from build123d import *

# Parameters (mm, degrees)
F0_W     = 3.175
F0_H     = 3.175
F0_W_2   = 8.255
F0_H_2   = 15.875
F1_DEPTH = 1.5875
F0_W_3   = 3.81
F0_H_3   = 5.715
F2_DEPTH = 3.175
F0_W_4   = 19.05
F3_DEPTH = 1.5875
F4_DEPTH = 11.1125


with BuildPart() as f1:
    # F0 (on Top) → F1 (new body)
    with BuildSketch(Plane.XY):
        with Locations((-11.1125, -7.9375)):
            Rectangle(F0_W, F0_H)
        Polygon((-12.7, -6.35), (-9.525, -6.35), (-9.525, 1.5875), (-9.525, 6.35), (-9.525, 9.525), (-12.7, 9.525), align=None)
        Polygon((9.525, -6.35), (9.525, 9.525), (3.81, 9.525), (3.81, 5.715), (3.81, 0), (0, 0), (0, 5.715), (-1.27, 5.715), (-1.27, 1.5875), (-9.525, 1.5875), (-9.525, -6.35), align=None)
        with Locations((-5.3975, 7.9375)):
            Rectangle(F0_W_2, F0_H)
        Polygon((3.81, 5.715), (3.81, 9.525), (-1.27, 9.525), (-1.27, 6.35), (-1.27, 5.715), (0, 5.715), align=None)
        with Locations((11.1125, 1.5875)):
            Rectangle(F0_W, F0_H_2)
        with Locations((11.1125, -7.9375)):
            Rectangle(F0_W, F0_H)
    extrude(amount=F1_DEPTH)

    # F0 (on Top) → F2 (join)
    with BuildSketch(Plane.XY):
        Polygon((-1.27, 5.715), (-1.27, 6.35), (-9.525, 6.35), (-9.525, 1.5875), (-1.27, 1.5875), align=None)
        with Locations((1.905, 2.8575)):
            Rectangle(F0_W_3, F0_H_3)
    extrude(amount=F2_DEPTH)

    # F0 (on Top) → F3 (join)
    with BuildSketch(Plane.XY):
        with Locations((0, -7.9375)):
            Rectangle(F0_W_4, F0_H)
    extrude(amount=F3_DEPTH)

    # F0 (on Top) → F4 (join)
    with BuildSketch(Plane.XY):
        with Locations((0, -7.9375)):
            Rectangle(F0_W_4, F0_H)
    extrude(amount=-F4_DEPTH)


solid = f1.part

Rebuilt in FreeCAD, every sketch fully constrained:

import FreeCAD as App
import Part
import Sketcher
from FreeCAD import Vector
Q = App.Units.Quantity

doc = App.newDocument("Part")
params = doc.addObject("Spreadsheet::Sheet", "Params")
for row, (alias, value) in enumerate([
    ("sketch1_width", "1 in"),
    ("sketch1_width2", "0.75 in"),
    ("sketch1_width3", "0.15 in"),
    ("sketch1_height", "0.225 in"),
    ("sketch1_height2", "0.1875 in"),
    ("pad1_length", "0.0625 in"),
    ("sketch2_width", "0.15 in"),
    ("sketch2_width2", "0.325 in"),
    ("sketch2_height", "0.1875 in"),
    ("sketch2_height2", "0.225 in"),
    ("pad2_length", "0.125 in"),
    ("sketch3_width", "0.75 in"),
    ("sketch3_height", "0.125 in"),
    ("pad3_length", "0.0625 in"),
    ("sketch4_width", "0.75 in"),
    ("sketch4_height", "0.125 in"),
    ("pad4_length", "0.4375 in"),
], start=1):
    params.set(f"A{row}", alias)
    params.set(f"B{row}", "=" + value)
    params.setAlias(f"B{row}", alias)

body = doc.addObject("PartDesign::Body", "Body")

sketch1 = body.newObject("Sketcher::SketchObject", "Sketch")
sketch1.AttachmentSupport = (doc.getObject("XY_Plane"), [""])
sketch1.MapMode = "FlatFace"
sketch1.addGeometry([
    Part.LineSegment(Vector(-12.7, -9.5, 0), Vector(-9.5, -9.5, 0)),
    Part.LineSegment(Vector(-9.5, -9.5, 0), Vector(-9.5, -6.3, 0)),
    Part.LineSegment(Vector(-9.5, -6.3, 0), Vector(9.5, -6.3, 0)),
    Part.LineSegment(Vector(9.5, -6.3, 0), Vector(9.5, -9.5, 0)),
    Part.LineSegment(Vector(9.5, -9.5, 0), Vector(12.7, -9.5, 0)),
    Part.LineSegment(Vector(12.7, -9.5, 0), Vector(12.7, 9.5, 0)),
    Part.LineSegment(Vector(12.7, 9.5, 0), Vector(-12.7, 9.5, 0)),
    Part.LineSegment(Vector(-12.7, 9.5, 0), Vector(-12.7, -9.5, 0)),
    Part.LineSegment(Vector(3.8, 5.7, 0), Vector(3.8, 0, 0)),
    Part.LineSegment(Vector(3.8, 0, 0), Vector(0, 0, 0)),
    Part.LineSegment(Vector(0, 0, 0), Vector(0, 5.7, 0)),
    Part.LineSegment(Vector(0, 5.7, 0), Vector(3.8, 5.7, 0)),
    Part.LineSegment(Vector(-1.3, 1.6, 0), Vector(-9.5, 1.6, 0)),
    Part.LineSegment(Vector(-9.5, 1.6, 0), Vector(-9.5, 6.3, 0)),
    Part.LineSegment(Vector(-9.5, 6.3, 0), Vector(-1.3, 6.3, 0)),
    Part.LineSegment(Vector(-1.3, 6.3, 0), Vector(-1.3, 1.6, 0)),
], False)
sketch1.addConstraint([
    Sketcher.Constraint("Coincident", 0, 2, 1, 1),
    Sketcher.Constraint("Coincident", 1, 2, 2, 1),
    Sketcher.Constraint("Coincident", 2, 2, 3, 1),
    Sketcher.Constraint("Coincident", 3, 2, 4, 1),
    Sketcher.Constraint("Coincident", 4, 2, 5, 1),
    Sketcher.Constraint("Coincident", 5, 2, 6, 1),
    Sketcher.Constraint("Coincident", 6, 2, 7, 1),
    Sketcher.Constraint("Coincident", 7, 2, 0, 1),
    Sketcher.Constraint("Coincident", 8, 2, 9, 1),
    Sketcher.Constraint("Coincident", 9, 2, 10, 1),
    Sketcher.Constraint("Coincident", 10, 2, 11, 1),
    Sketcher.Constraint("Coincident", 11, 2, 8, 1),
    Sketcher.Constraint("Coincident", 12, 2, 13, 1),
    Sketcher.Constraint("Coincident", 13, 2, 14, 1),
    Sketcher.Constraint("Coincident", 14, 2, 15, 1),
    Sketcher.Constraint("Coincident", 15, 2, 12, 1),
    Sketcher.Constraint("Horizontal", 0),
    Sketcher.Constraint("Vertical", 1),
    Sketcher.Constraint("Horizontal", 2),
    Sketcher.Constraint("Vertical", 3),
    Sketcher.Constraint("Horizontal", 4),
    Sketcher.Constraint("Vertical", 5),
    Sketcher.Constraint("Horizontal", 6),
    Sketcher.Constraint("Vertical", 7),
    Sketcher.Constraint("Vertical", 8),
    Sketcher.Constraint("Horizontal", 9),
    Sketcher.Constraint("Vertical", 10),
    Sketcher.Constraint("Horizontal", 11),
    Sketcher.Constraint("Horizontal", 12),
    Sketcher.Constraint("Vertical", 13),
    Sketcher.Constraint("Horizontal", 14),
    Sketcher.Constraint("Vertical", 15),
    Sketcher.Constraint("Coincident", 9, 2, -1, 1),
    Sketcher.Constraint("Symmetric", 4, 2, 6, 2, -1, 1),
    Sketcher.Constraint("Symmetric", 2, 2, 13, 2, -1, 1),
    Sketcher.Constraint("Symmetric", 0, 2, 3, 2, -2),
    Sketcher.Constraint("Equal", 4, 1),
    Sketcher.Constraint("Equal", 2, 5),
    Sketcher.Constraint("DistanceX", 6, 2, 6, 1, Q("1 in")),
    Sketcher.Constraint("DistanceX", 2, 1, 2, 2, Q("0.75 in")),
    Sketcher.Constraint("DistanceX", 9, 2, 9, 1, Q("0.15 in")),
    Sketcher.Constraint("DistanceX", 14, 2, 11, 2, Q("0.2 in")),
    Sketcher.Constraint("DistanceY", 8, 2, 8, 1, Q("0.225 in")),
    Sketcher.Constraint("DistanceY", 13, 1, 13, 2, Q("0.1875 in")),
])
sketch1.setExpression("Constraints[38]", "Params.sketch1_width")
sketch1.setExpression("Constraints[39]", "Params.sketch1_width2")
sketch1.setExpression("Constraints[40]", "Params.sketch1_width3")
sketch1.setExpression("Constraints[42]", "Params.sketch1_height")
sketch1.setExpression("Constraints[43]", "Params.sketch1_height2")
pad1 = body.newObject("PartDesign::Pad", "Pad")
pad1.Profile = sketch1
pad1.setExpression("Length", "Params.pad1_length")

sketch2 = body.newObject("Sketcher::SketchObject", "Sketch001")
sketch2.AttachmentSupport = (doc.getObject("XY_Plane"), [""])
sketch2.MapMode = "FlatFace"
sketch2.addGeometry([
    Part.LineSegment(Vector(-1.3, 6.3, 0), Vector(-9.5, 6.3, 0)),
    Part.LineSegment(Vector(-9.5, 6.3, 0), Vector(-9.5, 1.6, 0)),
    Part.LineSegment(Vector(-9.5, 1.6, 0), Vector(-1.3, 1.6, 0)),
    Part.LineSegment(Vector(-1.3, 1.6, 0), Vector(-1.3, 6.3, 0)),
    Part.LineSegment(Vector(0, 5.7, 0), Vector(0, 0, 0)),
    Part.LineSegment(Vector(0, 0, 0), Vector(3.8, 0, 0)),
    Part.LineSegment(Vector(3.8, 0, 0), Vector(3.8, 5.7, 0)),
    Part.LineSegment(Vector(3.8, 5.7, 0), Vector(0, 5.7, 0)),
], False)
sketch2.addConstraint([
    Sketcher.Constraint("Coincident", 0, 2, 1, 1),
    Sketcher.Constraint("Coincident", 1, 2, 2, 1),
    Sketcher.Constraint("Coincident", 2, 2, 3, 1),
    Sketcher.Constraint("Coincident", 3, 2, 0, 1),
    Sketcher.Constraint("Coincident", 4, 2, 5, 1),
    Sketcher.Constraint("Coincident", 5, 2, 6, 1),
    Sketcher.Constraint("Coincident", 6, 2, 7, 1),
    Sketcher.Constraint("Coincident", 7, 2, 4, 1),
    Sketcher.Constraint("Horizontal", 0),
    Sketcher.Constraint("Vertical", 1),
    Sketcher.Constraint("Horizontal", 2),
    Sketcher.Constraint("Vertical", 3),
    Sketcher.Constraint("Vertical", 4),
    Sketcher.Constraint("Horizontal", 5),
    Sketcher.Constraint("Vertical", 6),
    Sketcher.Constraint("Horizontal", 7),
    Sketcher.Constraint("Coincident", 4, 2, -1, 1),
    Sketcher.Constraint("DistanceX", 5, 1, 5, 2, Q("0.15 in")),
    Sketcher.Constraint("DistanceX", 2, 2, 5, 2, Q("0.2 in")),
    Sketcher.Constraint("DistanceX", 0, 2, 0, 1, Q("0.325 in")),
    Sketcher.Constraint("DistanceY", 1, 2, 1, 1, Q("0.1875 in")),
    Sketcher.Constraint("DistanceY", 4, 2, 4, 1, Q("0.225 in")),
    Sketcher.Constraint("DistanceY", -1, 1, 0, 2, Q("0.25 in")),
])
sketch2.setExpression("Constraints[17]", "Params.sketch2_width")
sketch2.setExpression("Constraints[19]", "Params.sketch2_width2")
sketch2.setExpression("Constraints[20]", "Params.sketch2_height")
sketch2.setExpression("Constraints[21]", "Params.sketch2_height2")
pad2 = body.newObject("PartDesign::Pad", "Pad001")
pad2.Profile = sketch2
pad2.setExpression("Length", "Params.pad2_length")

sketch3 = body.newObject("Sketcher::SketchObject", "Sketch002")
sketch3.AttachmentSupport = (doc.getObject("XY_Plane"), [""])
sketch3.MapMode = "FlatFace"
sketch3.addGeometry([
    Part.LineSegment(Vector(-9.5, -6.3, 0), Vector(-9.5, -9.5, 0)),
    Part.LineSegment(Vector(-9.5, -9.5, 0), Vector(9.5, -9.5, 0)),
    Part.LineSegment(Vector(9.5, -9.5, 0), Vector(9.5, -6.3, 0)),
    Part.LineSegment(Vector(9.5, -6.3, 0), Vector(-9.5, -6.3, 0)),
], False)
sketch3.addConstraint([
    Sketcher.Constraint("Coincident", 0, 2, 1, 1),
    Sketcher.Constraint("Coincident", 1, 2, 2, 1),
    Sketcher.Constraint("Coincident", 2, 2, 3, 1),
    Sketcher.Constraint("Coincident", 3, 2, 0, 1),
    Sketcher.Constraint("Vertical", 0),
    Sketcher.Constraint("Horizontal", 1),
    Sketcher.Constraint("Vertical", 2),
    Sketcher.Constraint("Horizontal", 3),
    Sketcher.Constraint("DistanceX", 1, 1, 1, 2, Q("0.75 in")),
    Sketcher.Constraint("DistanceY", 0, 2, 0, 1, Q("0.125 in")),
    Sketcher.Constraint("DistanceY", 2, 2, -1, 1, Q("0.25 in")),
    Sketcher.Constraint("DistanceX", 0, 2, -1, 1, Q("0.375 in")),
])
sketch3.setExpression("Constraints[8]", "Params.sketch3_width")
sketch3.setExpression("Constraints[9]", "Params.sketch3_height")
pad3 = body.newObject("PartDesign::Pad", "Pad002")
pad3.Profile = sketch3
pad3.setExpression("Length", "Params.pad3_length")

sketch4 = body.newObject("Sketcher::SketchObject", "Sketch003")
sketch4.AttachmentSupport = (doc.getObject("XY_Plane"), [""])
sketch4.MapMode = "FlatFace"
sketch4.addGeometry([
    Part.LineSegment(Vector(-9.5, -6.3, 0), Vector(-9.5, -9.5, 0)),
    Part.LineSegment(Vector(-9.5, -9.5, 0), Vector(9.5, -9.5, 0)),
    Part.LineSegment(Vector(9.5, -9.5, 0), Vector(9.5, -6.3, 0)),
    Part.LineSegment(Vector(9.5, -6.3, 0), Vector(-9.5, -6.3, 0)),
], False)
sketch4.addConstraint([
    Sketcher.Constraint("Coincident", 0, 2, 1, 1),
    Sketcher.Constraint("Coincident", 1, 2, 2, 1),
    Sketcher.Constraint("Coincident", 2, 2, 3, 1),
    Sketcher.Constraint("Coincident", 3, 2, 0, 1),
    Sketcher.Constraint("Vertical", 0),
    Sketcher.Constraint("Horizontal", 1),
    Sketcher.Constraint("Vertical", 2),
    Sketcher.Constraint("Horizontal", 3),
    Sketcher.Constraint("DistanceX", 1, 1, 1, 2, Q("0.75 in")),
    Sketcher.Constraint("DistanceY", 0, 2, 0, 1, Q("0.125 in")),
    Sketcher.Constraint("DistanceY", 2, 2, -1, 1, Q("0.25 in")),
    Sketcher.Constraint("DistanceX", 0, 2, -1, 1, Q("0.375 in")),
])
sketch4.setExpression("Constraints[8]", "Params.sketch4_width")
sketch4.setExpression("Constraints[9]", "Params.sketch4_height")
pad4 = body.newObject("PartDesign::Pad", "Pad003")
pad4.Profile = sketch4
pad4.setExpression("Length", "Params.pad4_length")
pad4.Reversed = True

doc.recompute()
